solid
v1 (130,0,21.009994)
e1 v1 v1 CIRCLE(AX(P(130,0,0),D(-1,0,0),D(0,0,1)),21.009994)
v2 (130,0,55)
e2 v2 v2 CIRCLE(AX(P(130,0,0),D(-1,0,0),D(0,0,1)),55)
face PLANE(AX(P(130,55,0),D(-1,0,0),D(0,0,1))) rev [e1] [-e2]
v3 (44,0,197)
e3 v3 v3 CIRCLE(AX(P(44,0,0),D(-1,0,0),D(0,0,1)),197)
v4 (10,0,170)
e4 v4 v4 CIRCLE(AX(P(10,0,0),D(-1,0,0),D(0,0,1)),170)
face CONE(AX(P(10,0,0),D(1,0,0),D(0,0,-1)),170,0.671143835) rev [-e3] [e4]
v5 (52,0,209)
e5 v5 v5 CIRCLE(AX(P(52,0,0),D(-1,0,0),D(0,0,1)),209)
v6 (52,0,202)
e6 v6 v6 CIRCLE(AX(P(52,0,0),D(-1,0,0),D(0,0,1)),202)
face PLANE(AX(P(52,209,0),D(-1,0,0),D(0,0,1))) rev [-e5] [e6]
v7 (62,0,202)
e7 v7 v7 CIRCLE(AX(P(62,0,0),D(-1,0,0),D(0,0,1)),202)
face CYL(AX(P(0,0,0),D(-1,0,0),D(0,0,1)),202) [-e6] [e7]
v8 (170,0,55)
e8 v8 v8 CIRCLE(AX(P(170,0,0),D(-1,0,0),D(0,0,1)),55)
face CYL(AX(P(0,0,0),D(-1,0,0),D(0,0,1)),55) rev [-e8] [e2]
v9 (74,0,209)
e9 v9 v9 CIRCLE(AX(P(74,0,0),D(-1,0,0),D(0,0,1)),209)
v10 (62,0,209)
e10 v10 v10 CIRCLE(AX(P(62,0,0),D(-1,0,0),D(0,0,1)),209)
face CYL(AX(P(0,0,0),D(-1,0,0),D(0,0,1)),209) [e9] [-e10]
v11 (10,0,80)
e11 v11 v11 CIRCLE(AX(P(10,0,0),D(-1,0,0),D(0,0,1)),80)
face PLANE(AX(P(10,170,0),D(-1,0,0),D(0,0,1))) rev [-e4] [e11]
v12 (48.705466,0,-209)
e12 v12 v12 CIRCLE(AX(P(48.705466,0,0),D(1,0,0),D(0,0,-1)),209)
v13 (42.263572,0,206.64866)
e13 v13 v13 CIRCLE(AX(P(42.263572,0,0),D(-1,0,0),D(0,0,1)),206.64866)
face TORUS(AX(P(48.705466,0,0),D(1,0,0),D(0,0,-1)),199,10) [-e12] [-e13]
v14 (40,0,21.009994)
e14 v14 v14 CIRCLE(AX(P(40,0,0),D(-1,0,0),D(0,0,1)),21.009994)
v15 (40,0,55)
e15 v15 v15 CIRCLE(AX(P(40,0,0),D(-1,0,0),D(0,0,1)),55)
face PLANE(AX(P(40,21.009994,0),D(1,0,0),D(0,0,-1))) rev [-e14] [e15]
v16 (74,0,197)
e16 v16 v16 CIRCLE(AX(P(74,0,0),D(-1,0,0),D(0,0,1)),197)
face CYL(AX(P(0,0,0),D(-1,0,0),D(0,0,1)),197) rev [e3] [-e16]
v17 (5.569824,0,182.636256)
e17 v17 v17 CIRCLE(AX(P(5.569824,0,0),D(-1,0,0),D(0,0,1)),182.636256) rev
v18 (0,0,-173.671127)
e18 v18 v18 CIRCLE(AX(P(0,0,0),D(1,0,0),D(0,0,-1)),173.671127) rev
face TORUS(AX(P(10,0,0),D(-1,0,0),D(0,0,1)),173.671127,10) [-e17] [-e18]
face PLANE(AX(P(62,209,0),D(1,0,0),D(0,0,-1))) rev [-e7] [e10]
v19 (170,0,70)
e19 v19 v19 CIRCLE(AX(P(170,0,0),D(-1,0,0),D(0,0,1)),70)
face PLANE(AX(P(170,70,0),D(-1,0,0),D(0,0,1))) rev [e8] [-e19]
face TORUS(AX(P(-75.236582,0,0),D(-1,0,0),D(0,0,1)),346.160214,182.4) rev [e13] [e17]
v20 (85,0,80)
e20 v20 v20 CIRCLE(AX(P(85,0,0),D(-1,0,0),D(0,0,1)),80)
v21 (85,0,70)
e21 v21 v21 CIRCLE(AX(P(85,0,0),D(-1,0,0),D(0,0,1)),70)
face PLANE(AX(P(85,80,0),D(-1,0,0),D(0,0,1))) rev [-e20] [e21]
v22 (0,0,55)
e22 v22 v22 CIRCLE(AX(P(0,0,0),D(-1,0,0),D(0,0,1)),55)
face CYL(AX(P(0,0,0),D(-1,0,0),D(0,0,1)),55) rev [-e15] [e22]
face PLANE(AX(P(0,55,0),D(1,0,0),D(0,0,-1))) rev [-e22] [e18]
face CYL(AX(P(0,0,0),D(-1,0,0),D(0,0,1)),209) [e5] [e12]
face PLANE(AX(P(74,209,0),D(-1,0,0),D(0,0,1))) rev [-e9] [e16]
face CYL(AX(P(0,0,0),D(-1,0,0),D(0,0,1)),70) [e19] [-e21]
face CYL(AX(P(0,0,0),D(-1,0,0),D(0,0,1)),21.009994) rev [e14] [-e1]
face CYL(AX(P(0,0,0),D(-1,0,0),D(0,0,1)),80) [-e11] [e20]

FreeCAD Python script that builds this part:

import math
import FreeCAD as App
import Part
import Sketcher
from FreeCAD import Vector


def edges_at(feature, points):
    """Names of the edges that pass closest to the given points."""
    edges = feature.Shape.Edges
    near = lambda p: min(range(len(edges)), key=lambda i: edges[i].distToShape(Part.Vertex(*p))[0])
    return sorted({f"Edge{near(p) + 1}" for p in points})

doc = App.newDocument("Part")
params = doc.addObject("Spreadsheet::Sheet", "Params")
for row, (alias, value) in enumerate([
    ("sketch1_radius", "182.4 mm"),
    ("sketch1_width", "40 mm"),
    ("sketch1_width2", "85 mm"),
    ("sketch1_width3", "75 mm"),
    ("sketch1_width4", "30 mm"),
    ("revolution_angle", "360 deg"),
    ("fillet_radius", "10 mm"),
], start=1):
    params.set(f"A{row}", alias)
    params.set(f"B{row}", "=" + value)
    params.setAlias(f"B{row}", alias)

body = doc.addObject("PartDesign::Body", "Body")

# Sketch on XY plane
sketch1 = body.newObject("Sketcher::SketchObject", "Sketch")
sketch1.AttachmentSupport = (doc.getObject("XY_Plane"), [""])
sketch1.MapMode = "FlatFace"
sketch1.addGeometry(Part.LineSegment(Vector(130, 55, 0), Vector(170, 55, 0)), False)
sketch1.addGeometry(Part.LineSegment(Vector(170, 55, 0), Vector(170, 70, 0)), False)
sketch1.addGeometry(Part.LineSegment(Vector(170, 70, 0), Vector(85, 70, 0)), False)
sketch1.addGeometry(Part.LineSegment(Vector(85, 70, 0), Vector(85, 80, 0)), False)
sketch1.addGeometry(Part.LineSegment(Vector(85, 80, 0), Vector(10, 80, 0)), False)
sketch1.addGeometry(Part.LineSegment(Vector(10, 80, 0), Vector(10, 170, 0)), False)
sketch1.addGeometry(Part.LineSegment(Vector(10, 170, 0), Vector(44, 197, 0)), False)
sketch1.addGeometry(Part.LineSegment(Vector(44, 197, 0), Vector(74, 197, 0)), False)
sketch1.addGeometry(Part.LineSegment(Vector(74, 197, 0), Vector(74, 209, 0)), False)
sketch1.addGeometry(Part.LineSegment(Vector(74, 209, 0), Vector(62, 209, 0)), False)
sketch1.addGeometry(Part.LineSegment(Vector(62, 209, 0), Vector(62, 202, 0)), False)
sketch1.addGeometry(Part.LineSegment(Vector(62, 202, 0), Vector(52, 202, 0)), False)
sketch1.addGeometry(Part.LineSegment(Vector(52, 202, 0), Vector(52, 209, 0)), False)
sketch1.addGeometry(Part.LineSegment(Vector(52, 209, 0), Vector(45, 209, 0)), False)
sketch1.addGeometry(Part.ArcOfCircle(Part.Circle(Vector(-75, 346, 0), Vector(0, 0, 1), 182), math.radians(-65.64), math.radians(-48.76)), False)
sketch1.addGeometry(Part.LineSegment(Vector(0, 180, 0), Vector(0, 55, 0)), False)
sketch1.addGeometry(Part.LineSegment(Vector(0, 55, 0), Vector(40, 55, 0)), False)
sketch1.addGeometry(Part.LineSegment(Vector(40, 55, 0), Vector(40, 21, 0)), False)
sketch1.addGeometry(Part.LineSegment(Vector(40, 21, 0), Vector(130, 21, 0)), False)
sketch1.addGeometry(Part.LineSegment(Vector(130, 21, 0), Vector(130, 55, 0)), False)
sketch1.addConstraint(Sketcher.Constraint("Coincident", 0, 2, 1, 1))
sketch1.addConstraint(Sketcher.Constraint("Coincident", 1, 2, 2, 1))
sketch1.addConstraint(Sketcher.Constraint("Coincident", 2, 2, 3, 1))
sketch1.addConstraint(Sketcher.Constraint("Coincident", 3, 2, 4, 1))
sketch1.addConstraint(Sketcher.Constraint("Coincident", 4, 2, 5, 1))
sketch1.addConstraint(Sketcher.Constraint("Coincident", 5, 2, 6, 1))
sketch1.addConstraint(Sketcher.Constraint("Coincident", 6, 2, 7, 1))
sketch1.addConstraint(Sketcher.Constraint("Coincident", 7, 2, 8, 1))
sketch1.addConstraint(Sketcher.Constraint("Coincident", 8, 2, 9, 1))
sketch1.addConstraint(Sketcher.Constraint("Coincident", 9, 2, 10, 1))
sketch1.addConstraint(Sketcher.Constraint("Coincident", 10, 2, 11, 1))
sketch1.addConstraint(Sketcher.Constraint("Coincident", 11, 2, 12, 1))
sketch1.addConstraint(Sketcher.Constraint("Coincident", 12, 2, 13, 1))
sketch1.addConstraint(Sketcher.Constraint("Coincident", 13, 2, 14, 2))
sketch1.addConstraint(Sketcher.Constraint("Coincident", 14, 1, 15, 1))
sketch1.addConstraint(Sketcher.Constraint("Coincident", 15, 2, 16, 1))
sketch1.addConstraint(Sketcher.Constraint("Coincident", 16, 2, 17, 1))
sketch1.addConstraint(Sketcher.Constraint("Coincident", 17, 2, 18, 1))
sketch1.addConstraint(Sketcher.Constraint("Coincident", 18, 2, 19, 1))
sketch1.addConstraint(Sketcher.Constraint("Coincident", 19, 2, 0, 1))
sketch1.addConstraint(Sketcher.Constraint("Horizontal", 0))
sketch1.addConstraint(Sketcher.Constraint("Vertical", 1))
sketch1.addConstraint(Sketcher.Constraint("Horizontal", 2))
sketch1.addConstraint(Sketcher.Constraint("Vertical", 3))
sketch1.addConstraint(Sketcher.Constraint("Horizontal", 4))
sketch1.addConstraint(Sketcher.Constraint("Vertical", 5))
sketch1.addConstraint(Sketcher.Constraint("Horizontal", 7))
sketch1.addConstraint(Sketcher.Constraint("Vertical", 8))
sketch1.addConstraint(Sketcher.Constraint("Horizontal", 9))
sketch1.addConstraint(Sketcher.Constraint("Vertical", 10))
sketch1.addConstraint(Sketcher.Constraint("Horizontal", 11))
sketch1.addConstraint(Sketcher.Constraint("Vertical", 12))
sketch1.addConstraint(Sketcher.Constraint("Horizontal", 13))
sketch1.addConstraint(Sketcher.Constraint("Vertical", 15))
sketch1.addConstraint(Sketcher.Constraint("Horizontal", 16))
sketch1.addConstraint(Sketcher.Constraint("Vertical", 17))
sketch1.addConstraint(Sketcher.Constraint("Horizontal", 18))
sketch1.addConstraint(Sketcher.Constraint("Vertical", 19))
sketch1.addConstraint(Sketcher.Constraint("PointOnObject", 14, 1, -2))
sketch1.addConstraint(Sketcher.Constraint("Horizontal", 9, 2, 12, 2))
sketch1.addConstraint(Sketcher.Constraint("Horizontal", 0, 2, 15, 2))
sketch1.addConstraint(Sketcher.Constraint("Equal", 0, 16))
sketch1.addConstraint(Sketcher.Constraint("Equal", 11, 3))
sketch1.addConstraint(Sketcher.Constraint("Equal", 18, 5))
sketch1.addConstraint(Sketcher.Constraint("Equal", 9, 8))
sketch1.addConstraint(Sketcher.Constraint("Equal", 13, 10))
sketch1.addConstraint(Sketcher.Constraint("Radius", 14, 182.4))
sketch1.addConstraint(Sketcher.Constraint("DistanceX", 0, 1, 0, 2, 40.0))
sketch1.addConstraint(Sketcher.Constraint("DistanceX", 2, 2, 2, 1, 85.0))
sketch1.addConstraint(Sketcher.Constraint("DistanceX", 4, 2, 4, 1, 75.0))
sketch1.addConstraint(Sketcher.Constraint("DistanceX", 7, 1, 7, 2, 30.0))
sketch1.addConstraint(Sketcher.Constraint("DistanceX", 9, 2, 9, 1, 12.0))
sketch1.addConstraint(Sketcher.Constraint("DistanceX", 11, 2, 11, 1, 10.0))
sketch1.addConstraint(Sketcher.Constraint("DistanceX", 13, 2, 13, 1, 7.0))
sketch1.addConstraint(Sketcher.Constraint("DistanceX", 18, 1, 18, 2, 90.0))
sketch1.addConstraint(Sketcher.Constraint("DistanceY", 1, 1, 1, 2, 15.0))
sketch1.addConstraint(Sketcher.Constraint("DistanceY", 15, 2, 15, 1, 125.0))
sketch1.addConstraint(Sketcher.Constraint("DistanceY", -1, 1, 0, 2, 55.0))
sketch1.addConstraint(Sketcher.Constraint("DistanceX", -1, 1, 6, 2, 44.0))
sketch1.addConstraint(Sketcher.Constraint("DistanceY", -1, 1, 6, 2, 197.0))
sketch1.addConstraint(Sketcher.Constraint("DistanceY", 17, 2, 17, 1, 33.990006))
sketch1.setExpression("Constraints[46]", "Params.sketch1_radius")
sketch1.setExpression("Constraints[47]", "Params.sketch1_width")
sketch1.setExpression("Constraints[48]", "Params.sketch1_width2")
sketch1.setExpression("Constraints[49]", "Params.sketch1_width3")
sketch1.setExpression("Constraints[50]", "Params.sketch1_width4")
revolution = body.newObject("PartDesign::Revolution", "Revolution")
revolution.Profile = sketch1
revolution.ReferenceAxis = (sketch1, ["H_Axis"])
revolution.setExpression("Angle", "Params.revolution_angle")
doc.recompute()

fillet = body.newObject("PartDesign::Fillet", "Fillet")
fillet.Base = (revolution, edges_at(revolution, [(0, 0, -180), (45, 0, -209)]))
fillet.setExpression("Radius", "Params.fillet_radius")

doc.recompute()
